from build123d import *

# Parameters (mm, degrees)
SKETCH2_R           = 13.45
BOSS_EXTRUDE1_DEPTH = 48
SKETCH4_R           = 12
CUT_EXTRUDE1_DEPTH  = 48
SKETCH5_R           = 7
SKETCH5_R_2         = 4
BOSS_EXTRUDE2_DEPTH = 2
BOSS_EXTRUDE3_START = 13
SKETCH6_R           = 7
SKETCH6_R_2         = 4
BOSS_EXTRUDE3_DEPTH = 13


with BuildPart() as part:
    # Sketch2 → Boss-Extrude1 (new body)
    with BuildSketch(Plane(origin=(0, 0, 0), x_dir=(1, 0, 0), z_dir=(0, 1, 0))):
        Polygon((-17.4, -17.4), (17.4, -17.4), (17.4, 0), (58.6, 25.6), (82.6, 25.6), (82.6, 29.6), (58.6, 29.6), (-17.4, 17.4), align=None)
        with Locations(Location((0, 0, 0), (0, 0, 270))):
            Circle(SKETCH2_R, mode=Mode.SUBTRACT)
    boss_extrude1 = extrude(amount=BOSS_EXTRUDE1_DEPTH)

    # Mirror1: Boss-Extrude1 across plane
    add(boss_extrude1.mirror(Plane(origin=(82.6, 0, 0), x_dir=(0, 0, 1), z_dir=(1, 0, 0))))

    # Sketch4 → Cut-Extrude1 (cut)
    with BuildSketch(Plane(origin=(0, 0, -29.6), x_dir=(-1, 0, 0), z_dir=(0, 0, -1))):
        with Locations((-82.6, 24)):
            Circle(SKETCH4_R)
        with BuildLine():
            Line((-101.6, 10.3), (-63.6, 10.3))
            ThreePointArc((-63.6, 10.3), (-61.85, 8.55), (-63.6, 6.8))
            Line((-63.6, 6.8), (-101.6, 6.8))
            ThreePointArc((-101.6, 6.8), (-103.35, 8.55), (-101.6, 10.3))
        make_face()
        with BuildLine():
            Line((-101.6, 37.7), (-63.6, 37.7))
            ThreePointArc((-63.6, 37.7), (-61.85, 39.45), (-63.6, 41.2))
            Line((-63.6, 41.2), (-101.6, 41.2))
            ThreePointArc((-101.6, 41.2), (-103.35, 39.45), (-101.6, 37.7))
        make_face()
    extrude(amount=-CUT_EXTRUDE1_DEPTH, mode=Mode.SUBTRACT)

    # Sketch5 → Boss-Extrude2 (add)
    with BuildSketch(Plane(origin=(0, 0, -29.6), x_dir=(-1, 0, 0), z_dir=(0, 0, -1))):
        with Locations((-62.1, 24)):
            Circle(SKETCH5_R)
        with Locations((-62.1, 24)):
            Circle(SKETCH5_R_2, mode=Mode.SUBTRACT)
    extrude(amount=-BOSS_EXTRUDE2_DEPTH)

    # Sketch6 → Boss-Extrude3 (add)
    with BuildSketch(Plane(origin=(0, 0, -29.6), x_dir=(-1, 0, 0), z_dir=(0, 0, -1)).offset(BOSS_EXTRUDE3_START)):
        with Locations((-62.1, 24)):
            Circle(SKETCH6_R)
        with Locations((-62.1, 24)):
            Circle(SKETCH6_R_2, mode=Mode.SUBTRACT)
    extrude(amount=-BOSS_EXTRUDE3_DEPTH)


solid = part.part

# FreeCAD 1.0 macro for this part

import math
import FreeCAD as App
import Part
import Sketcher

doc = App.newDocument("Part")
body = doc.addObject("PartDesign::Body", "Body")

# Sketch on XZ plane
sketch1 = doc.addObject("Sketcher::SketchObject", "Sketch")
body.addObject(sketch1)
sketch1.AttachmentSupport = (doc.XZ_Plane, [""])
sketch1.MapMode = "FlatFace"
sketch1.addGeometry(Part.LineSegment(App.Vector(-17.4, 17.4, 0), App.Vector(17.4, 17.4, 0)), False)
sketch1.addGeometry(Part.LineSegment(App.Vector(17.4, 17.4, 0), App.Vector(17.4, 0, 0)), False)
sketch1.addGeometry(Part.LineSegment(App.Vector(17.4, 0, 0), App.Vector(58.6, -25.6, 0)), False)
sketch1.addGeometry(Part.LineSegment(App.Vector(58.6, -25.6, 0), App.Vector(82.6, -25.6, 0)), False)
sketch1.addGeometry(Part.LineSegment(App.Vector(82.6, -25.6, 0), App.Vector(82.6, -29.6, 0)), False)
sketch1.addGeometry(Part.LineSegment(App.Vector(82.6, -29.6, 0), App.Vector(58.6, -29.6, 0)), False)
sketch1.addGeometry(Part.LineSegment(App.Vector(58.6, -29.6, 0), App.Vector(-17.4, -17.4, 0)), False)
sketch1.addGeometry(Part.LineSegment(App.Vector(-17.4, -17.4, 0), App.Vector(-17.4, 17.4, 0)), False)
sketch1.addGeometry(Part.Circle(App.Vector(0, 0, 0), App.Vector(0, 0, 1), 13.45), False)
sketch1.addConstraint(Sketcher.Constraint("Coincident", 0, 2, 1, 1))
sketch1.addConstraint(Sketcher.Constraint("Coincident", 1, 2, 2, 1))
sketch1.addConstraint(Sketcher.Constraint("Coincident", 2, 2, 3, 1))
sketch1.addConstraint(Sketcher.Constraint("Coincident", 3, 2, 4, 1))
sketch1.addConstraint(Sketcher.Constraint("Coincident", 4, 2, 5, 1))
sketch1.addConstraint(Sketcher.Constraint("Coincident", 5, 2, 6, 1))
sketch1.addConstraint(Sketcher.Constraint("Coincident", 6, 2, 7, 1))
sketch1.addConstraint(Sketcher.Constraint("Coincident", 7, 2, 0, 1))
sketch1.addConstraint(Sketcher.Constraint("Horizontal", 0))
sketch1.addConstraint(Sketcher.Constraint("Vertical", 1))
sketch1.addConstraint(Sketcher.Constraint("Horizontal", 3))
sketch1.addConstraint(Sketcher.Constraint("Vertical", 4))
sketch1.addConstraint(Sketcher.Constraint("Horizontal", 5))
sketch1.addConstraint(Sketcher.Constraint("Vertical", 7))
sketch1.addConstraint(Sketcher.Constraint("Coincident", 8, 3, -1, 1))
sketch1.addConstraint(Sketcher.Constraint("Symmetric", 0, 2, 6, 2, -1, 1))
sketch1.addConstraint(Sketcher.Constraint("PointOnObject", 1, 2, -1))
sketch1.addConstraint(Sketcher.Constraint("Vertical", 2, 2, 5, 2))
sketch1.addConstraint(Sketcher.Constraint("Equal", 0, 7))
sketch1.addConstraint(Sketcher.Constraint("Diameter", 8, 26.9))
sketch1.addConstraint(Sketcher.Constraint("DistanceX", 3, 1, 3, 2, 24.0))
sketch1.addConstraint(Sketcher.Constraint("DistanceY", 4, 2, 4, 1, 4.0))
sketch1.addConstraint(Sketcher.Constraint("DistanceX", 0, 1, 0, 2, 34.8))
sketch1.addConstraint(Sketcher.Constraint("DistanceY", 2, 2, 0, 2, 43.0))
sketch1.addConstraint(Sketcher.Constraint("DistanceX", 6, 2, 2, 2, 76.0))
pad1 = doc.addObject("PartDesign::Pad", "Pad")
body.addObject(pad1)
pad1.Profile = sketch1
pad1.Length = 48
pad1.Reversed = True
doc.recompute()

datumplane = doc.addObject("PartDesign::Plane", "DatumPlane")
body.addObject(datumplane)
datumplane.AttachmentSupport = (doc.YZ_Plane, [""])
datumplane.MapMode = "FlatFace"
datumplane.AttachmentOffset = App.Placement(App.Vector(0, 0, 82.6), App.Rotation())
mirrored = doc.addObject("PartDesign::Mirrored", "Mirrored")
body.addObject(mirrored)
mirrored.Originals = [pad1]
mirrored.MirrorPlane = (datumplane, [""])
body.Tip = mirrored

# Sketch on XY plane
sketch2 = doc.addObject("Sketcher::SketchObject", "Sketch001")
body.addObject(sketch2)
sketch2.AttachmentSupport = (doc.XY_Plane, [""])
sketch2.MapMode = "FlatFace"
sketch2.AttachmentOffset = App.Placement(App.Vector(0, 0, -29.6), App.Rotation())
sketch2.addGeometry(Part.Circle(App.Vector(82.6, 24, 0), App.Vector(0, 0, 1), 12), False)
sketch2.addGeometry(Part.LineSegment(App.Vector(63.6, 10.3, 0), App.Vector(101.6, 10.3, 0)), False)
sketch2.addGeometry(Part.ArcOfCircle(Part.Circle(App.Vector(101.6, 8.55, 0), App.Vector(0, 0, 1), 1.75), math.radians(-90), math.radians(90)), False)
sketch2.addGeometry(Part.LineSegment(App.Vector(101.6, 6.8, 0), App.Vector(63.6, 6.8, 0)), False)
sketch2.addGeometry(Part.ArcOfCircle(Part.Circle(App.Vector(63.6, 8.55, 0), App.Vector(0, 0, 1), 1.75), math.radians(90), math.radians(270)), False)
sketch2.addGeometry(Part.LineSegment(App.Vector(101.6, 37.7, 0), App.Vector(63.6, 37.7, 0)), False)
sketch2.addGeometry(Part.ArcOfCircle(Part.Circle(App.Vector(63.6, 39.45, 0), App.Vector(0, 0, 1), 1.75), math.radians(90), math.radians(270)), False)
sketch2.addGeometry(Part.LineSegment(App.Vector(63.6, 41.2, 0), App.Vector(101.6, 41.2, 0)), False)
sketch2.addGeometry(Part.ArcOfCircle(Part.Circle(App.Vector(101.6, 39.45, 0), App.Vector(0, 0, 1), 1.75), math.radians(-90), math.radians(90)), False)
sketch2.addConstraint(Sketcher.Constraint("Tangent", 1, 2, 2, 2))
sketch2.addConstraint(Sketcher.Constraint("Tangent", 2, 1, 3, 1))
sketch2.addConstraint(Sketcher.Constraint("Tangent", 3, 2, 4, 2))
sketch2.addConstraint(Sketcher.Constraint("Tangent", 4, 1, 1, 1))
sketch2.addConstraint(Sketcher.Constraint("Tangent", 5, 2, 6, 2))
sketch2.addConstraint(Sketcher.Constraint("Tangent", 6, 1, 7, 1))
sketch2.addConstraint(Sketcher.Constraint("Tangent", 7, 2, 8, 2))
sketch2.addConstraint(Sketcher.Constraint("Tangent", 8, 1, 5, 1))
sketch2.addConstraint(Sketcher.Constraint("Horizontal", 1))
sketch2.addConstraint(Sketcher.Constraint("Horizontal", 3))
sketch2.addConstraint(Sketcher.Constraint("Horizontal", 5))
sketch2.addConstraint(Sketcher.Constraint("Horizontal", 7))
sketch2.addConstraint(Sketcher.Constraint("Equal", 4, 6))
sketch2.addConstraint(Sketcher.Constraint("Vertical", 4, 3, 6, 3))
sketch2.addConstraint(Sketcher.Constraint("Vertical", 2, 3, 8, 3))
sketch2.addConstraint(Sketcher.Constraint("Diameter", 0, 24.0))
sketch2.addConstraint(Sketcher.Constraint("DistanceX", 1, 1, 1, 2, 38.0))
sketch2.addConstraint(Sketcher.Constraint("Radius", 2, 1.75))
sketch2.addConstraint(Sketcher.Constraint("DistanceY", -1, 1, 0, 3, 24.0))
sketch2.addConstraint(Sketcher.Constraint("DistanceX", 0, 3, 2, 3, 19.0))
sketch2.addConstraint(Sketcher.Constraint("DistanceX", -1, 1, 0, 3, 82.6))
sketch2.addConstraint(Sketcher.Constraint("DistanceY", -1, 1, 1, 2, 10.3))
sketch2.addConstraint(Sketcher.Constraint("DistanceY", -1, 1, 5, 2, 37.7))
pocket1 = doc.addObject("PartDesign::Pocket", "Pocket")
body.addObject(pocket1)
pocket1.Profile = sketch2
pocket1.Length = 48
pocket1.Reversed = True

# Sketch on XY plane
sketch3 = doc.addObject("Sketcher::SketchObject", "Sketch002")
body.addObject(sketch3)
sketch3.AttachmentSupport = (doc.XY_Plane, [""])
sketch3.MapMode = "FlatFace"
sketch3.AttachmentOffset = App.Placement(App.Vector(0, 0, -29.6), App.Rotation())
sketch3.addGeometry(Part.Circle(App.Vector(62.1, 24, 0), App.Vector(0, 0, 1), 7), False)
sketch3.addGeometry(Part.Circle(App.Vector(62.1, 24, 0), App.Vector(0, 0, 1), 4), False)
sketch3.addConstraint(Sketcher.Constraint("Coincident", 1, 3, 0, 3))
sketch3.addConstraint(Sketcher.Constraint("Diameter", 0, 14.0))
sketch3.addConstraint(Sketcher.Constraint("Diameter", 1, 8.0))
sketch3.addConstraint(Sketcher.Constraint("DistanceY", -1, 1, 0, 3, 24.0))
sketch3.addConstraint(Sketcher.Constraint("DistanceX", -1, 1, 0, 3, 62.1))
pad2 = doc.addObject("PartDesign::Pad", "Pad001")
body.addObject(pad2)
pad2.Profile = sketch3
pad2.Length = 2

# Sketch on XY plane
sketch4 = doc.addObject("Sketcher::SketchObject", "Sketch003")
body.addObject(sketch4)
sketch4.AttachmentSupport = (doc.XY_Plane, [""])
sketch4.MapMode = "FlatFace"
sketch4.AttachmentOffset = App.Placement(App.Vector(0, 0, -42.6), App.Rotation())
sketch4.addGeometry(Part.Circle(App.Vector(62.1, 24, 0), App.Vector(0, 0, 1), 7), False)
sketch4.addGeometry(Part.Circle(App.Vector(62.1, 24, 0), App.Vector(0, 0, 1), 4), False)
sketch4.addConstraint(Sketcher.Constraint("Coincident", 1, 3, 0, 3))
sketch4.addConstraint(Sketcher.Constraint("Diameter", 0, 14.0))
sketch4.addConstraint(Sketcher.Constraint("Diameter", 1, 8.0))
sketch4.addConstraint(Sketcher.Constraint("DistanceY", -1, 1, 0, 3, 24.0))
sketch4.addConstraint(Sketcher.Constraint("DistanceX", -1, 1, 0, 3, 62.1))
pad3 = doc.addObject("PartDesign::Pad", "Pad002")
body.addObject(pad3)
pad3.Profile = sketch4
pad3.Length = 13

doc.recompute()
